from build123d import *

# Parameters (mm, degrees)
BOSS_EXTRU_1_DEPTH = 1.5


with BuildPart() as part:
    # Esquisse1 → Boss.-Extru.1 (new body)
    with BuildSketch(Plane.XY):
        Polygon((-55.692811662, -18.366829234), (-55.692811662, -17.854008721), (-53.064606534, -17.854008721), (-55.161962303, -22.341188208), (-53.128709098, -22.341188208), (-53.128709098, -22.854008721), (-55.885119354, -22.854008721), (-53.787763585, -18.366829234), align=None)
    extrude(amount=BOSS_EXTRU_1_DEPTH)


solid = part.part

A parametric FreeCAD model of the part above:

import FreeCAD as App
import Part
import Sketcher
from FreeCAD import Vector

doc = App.newDocument("Part")
params = doc.addObject("Spreadsheet::Sheet", "Params")
for row, (alias, value) in enumerate([
    ("pad1_length", "1.5 mm"),
], start=1):
    params.set(f"A{row}", alias)
    params.set(f"B{row}", "=" + value)
    params.setAlias(f"B{row}", alias)

body = doc.addObject("PartDesign::Body", "Body")

sketch1 = body.newObject("Sketcher::SketchObject", "Sketch")
sketch1.AttachmentSupport = (doc.getObject("XY_Plane"), [""])
sketch1.MapMode = "FlatFace"
sketch1.addGeometry(Part.LineSegment(Vector(-55.7, -17.9, 0), Vector(-55.7, -18.4, 0)), False)
sketch1.addGeometry(Part.LineSegment(Vector(-55.7, -18.4, 0), Vector(-53.8, -18.4, 0)), False)
sketch1.addGeometry(Part.LineSegment(Vector(-53.8, -18.4, 0), Vector(-55.9, -22.9, 0)), False)
sketch1.addGeometry(Part.LineSegment(Vector(-55.9, -22.9, 0), Vector(-53.1, -22.9, 0)), False)
sketch1.addGeometry(Part.LineSegment(Vector(-53.1, -22.9, 0), Vector(-53.1, -22.3, 0)), False)
sketch1.addGeometry(Part.LineSegment(Vector(-53.1, -22.3, 0), Vector(-55.2, -22.3, 0)), False)
sketch1.addGeometry(Part.LineSegment(Vector(-55.2, -22.3, 0), Vector(-53.1, -17.9, 0)), False)
sketch1.addGeometry(Part.LineSegment(Vector(-53.1, -17.9, 0), Vector(-55.7, -17.9, 0)), False)
sketch1.addConstraint(Sketcher.Constraint("Coincident", 0, 2, 1, 1))
sketch1.addConstraint(Sketcher.Constraint("Coincident", 1, 2, 2, 1))
sketch1.addConstraint(Sketcher.Constraint("Coincident", 2, 2, 3, 1))
sketch1.addConstraint(Sketcher.Constraint("Coincident", 3, 2, 4, 1))
sketch1.addConstraint(Sketcher.Constraint("Coincident", 4, 2, 5, 1))
sketch1.addConstraint(Sketcher.Constraint("Coincident", 5, 2, 6, 1))
sketch1.addConstraint(Sketcher.Constraint("Coincident", 6, 2, 7, 1))
sketch1.addConstraint(Sketcher.Constraint("Coincident", 7, 2, 0, 1))
sketch1.addConstraint(Sketcher.Constraint("Vertical", 0))
sketch1.addConstraint(Sketcher.Constraint("Horizontal", 1))
sketch1.addConstraint(Sketcher.Constraint("Horizontal", 3))
sketch1.addConstraint(Sketcher.Constraint("Vertical", 4))
sketch1.addConstraint(Sketcher.Constraint("Horizontal", 5))
sketch1.addConstraint(Sketcher.Constraint("Horizontal", 7))
sketch1.addConstraint(Sketcher.Constraint("Parallel", 2, 6))
sketch1.addConstraint(Sketcher.Constraint("Equal", 0, 4))
sketch1.addConstraint(Sketcher.Constraint("DistanceY", 3, 2, 6, 2, 5.0))
sketch1.addConstraint(Sketcher.Constraint("DistanceX", 1, 1, 1, 2, 1.905048))
sketch1.addConstraint(Sketcher.Constraint("DistanceX", 3, 1, 3, 2, 2.75641))
sketch1.addConstraint(Sketcher.Constraint("DistanceY", 0, 2, 0, 1, 0.512821))
sketch1.addConstraint(Sketcher.Constraint("DistanceX", 5, 2, 1, 2, 1.374199))
sketch1.addConstraint(Sketcher.Constraint("Distance", 2, 4.953149))
sketch1.addConstraint(Sketcher.Constraint("DistanceX", 0, 2, -1, 1, 55.692812))
sketch1.addConstraint(Sketcher.Constraint("DistanceY", 0, 2, -1, 1, 18.366829))
pad1 = body.newObject("PartDesign::Pad", "Pad")
pad1.Profile = sketch1
pad1.setExpression("Length", "Params.pad1_length")

doc.recompute()
